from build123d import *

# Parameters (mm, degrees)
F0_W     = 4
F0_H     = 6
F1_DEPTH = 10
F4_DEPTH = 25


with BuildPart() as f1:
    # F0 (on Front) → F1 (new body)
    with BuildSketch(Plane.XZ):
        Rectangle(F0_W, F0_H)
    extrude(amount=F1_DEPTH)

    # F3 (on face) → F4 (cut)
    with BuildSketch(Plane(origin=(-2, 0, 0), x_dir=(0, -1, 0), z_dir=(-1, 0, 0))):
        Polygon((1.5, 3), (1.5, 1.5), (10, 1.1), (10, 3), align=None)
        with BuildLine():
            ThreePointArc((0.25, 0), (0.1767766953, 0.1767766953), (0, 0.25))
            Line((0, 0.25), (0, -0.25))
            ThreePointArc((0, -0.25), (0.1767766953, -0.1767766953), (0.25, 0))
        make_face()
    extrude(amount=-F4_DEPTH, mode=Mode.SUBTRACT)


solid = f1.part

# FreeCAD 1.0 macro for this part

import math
import FreeCAD as App
import Part
import Sketcher
from FreeCAD import Vector
Q = App.Units.Quantity


def add_polygon(sketch, points):
    """Adds a closed chain of lines whose ends are joined by coincident constraints."""
    first, n = sketch.GeometryCount, len(points)
    for a, b in zip(points, points[1:] + points[:1]):
        sketch.addGeometry(Part.LineSegment(App.Vector(*a, 0), App.Vector(*b, 0)), False)
    for i in range(n):
        sketch.addConstraint(Sketcher.Constraint("Coincident", first + i, 2, first + (i + 1) % n, 1))

doc = App.newDocument("Part")
params = doc.addObject("Spreadsheet::Sheet", "Params")
for row, (alias, value) in enumerate([
    ("sketch1_width", "4 mm"),
    ("sketch1_height", "6 mm"),
    ("pad1_length", "10 mm"),
    ("sketch2_radius", "0.25 mm"),
    ("sketch2_width", "8.5 mm"),
    ("sketch2_height", "1.5 mm"),
    ("sketch2_height2", "1.9 mm"),
    ("pocket1_length", "25 mm"),
], start=1):
    params.set(f"A{row}", alias)
    params.set(f"B{row}", "=" + value)
    params.setAlias(f"B{row}", alias)

body = doc.addObject("PartDesign::Body", "Body")

sketch1 = doc.addObject("Sketcher::SketchObject", "Sketch")
body.addObject(sketch1)
sketch1.AttachmentSupport = (doc.XZ_Plane, [""])
sketch1.MapMode = "FlatFace"
add_polygon(sketch1, [(-2, 3), (-2, -3), (2, -3), (2, 3)])
sketch1.addConstraint(Sketcher.Constraint("Vertical", 0))
sketch1.addConstraint(Sketcher.Constraint("Horizontal", 1))
sketch1.addConstraint(Sketcher.Constraint("Vertical", 2))
sketch1.addConstraint(Sketcher.Constraint("Horizontal", 3))
sketch1.addConstraint(Sketcher.Constraint("Symmetric", 0, 2, 2, 2, -1, 1))
sketch1.addConstraint(Sketcher.Constraint("DistanceX", 1, 1, 1, 2, Q("4 mm")))
sketch1.addConstraint(Sketcher.Constraint("DistanceY", 0, 2, 0, 1, Q("6 mm")))
sketch1.setExpression("Constraints[9]", "Params.sketch1_width")
sketch1.setExpression("Constraints[10]", "Params.sketch1_height")
pad1 = doc.addObject("PartDesign::Pad", "Pad")
body.addObject(pad1)
pad1.Profile = sketch1
pad1.setExpression("Length", "Params.pad1_length")

sketch2 = doc.addObject("Sketcher::SketchObject", "Sketch001")
body.addObject(sketch2)
sketch2.AttachmentSupport = (doc.YZ_Plane, [""])
sketch2.MapMode = "FlatFace"
sketch2.AttachmentOffset = App.Placement(Vector(0, 0, -2), App.Rotation())
add_polygon(sketch2, [(-1.5, 3), (-1.5, 1.5), (-10, 1.1), (-10, 3)])
sketch2.addGeometry(Part.ArcOfCircle(Part.Circle(Vector(0, 0, 0), Vector(0, 0, 1), 0.25), math.radians(90), math.radians(180)), False)
sketch2.addGeometry(Part.LineSegment(Vector(0, 0.25, 0), Vector(0, -0.25, 0)), False)
sketch2.addGeometry(Part.ArcOfCircle(Part.Circle(Vector(0, 0, 0), Vector(0, 0, 1), 0.25), math.radians(180), math.radians(270)), False)
sketch2.addConstraint(Sketcher.Constraint("Coincident", 4, 1, 5, 1))
sketch2.addConstraint(Sketcher.Constraint("Coincident", 5, 2, 6, 2))
sketch2.addConstraint(Sketcher.Constraint("Tangent", 6, 1, 4, 2))
sketch2.addConstraint(Sketcher.Constraint("Vertical", 0))
sketch2.addConstraint(Sketcher.Constraint("Vertical", 2))
sketch2.addConstraint(Sketcher.Constraint("Horizontal", 3))
sketch2.addConstraint(Sketcher.Constraint("Vertical", 5))
sketch2.addConstraint(Sketcher.Constraint("Coincident", 4, 3, -1, 1))
sketch2.addConstraint(Sketcher.Constraint("Equal", 4, 6))
sketch2.addConstraint(Sketcher.Constraint("PointOnObject", 4, 1, -2))
sketch2.addConstraint(Sketcher.Constraint("PointOnObject", 6, 1, -1))
sketch2.addConstraint(Sketcher.Constraint("Radius", 4, Q("0.25 mm")))
sketch2.addConstraint(Sketcher.Constraint("DistanceX", 3, 1, 3, 2, Q("8.5 mm")))
sketch2.addConstraint(Sketcher.Constraint("DistanceY", 0, 2, 0, 1, Q("1.5 mm")))
sketch2.addConstraint(Sketcher.Constraint("DistanceY", 2, 1, 2, 2, Q("1.9 mm")))
sketch2.addConstraint(Sketcher.Constraint("DistanceX", 1, 2, -1, 1, Q("10 mm")))
sketch2.addConstraint(Sketcher.Constraint("DistanceY", -1, 1, 2, 2, Q("3 mm")))
sketch2.setExpression("Constraints[15]", "Params.sketch2_radius")
sketch2.setExpression("Constraints[16]", "Params.sketch2_width")
sketch2.setExpression("Constraints[17]", "Params.sketch2_height")
sketch2.setExpression("Constraints[18]", "Params.sketch2_height2")
pocket1 = doc.addObject("PartDesign::Pocket", "Pocket")
body.addObject(pocket1)
pocket1.Profile = sketch2
pocket1.setExpression("Length", "Params.pocket1_length")
pocket1.Reversed = True

doc.recompute()
